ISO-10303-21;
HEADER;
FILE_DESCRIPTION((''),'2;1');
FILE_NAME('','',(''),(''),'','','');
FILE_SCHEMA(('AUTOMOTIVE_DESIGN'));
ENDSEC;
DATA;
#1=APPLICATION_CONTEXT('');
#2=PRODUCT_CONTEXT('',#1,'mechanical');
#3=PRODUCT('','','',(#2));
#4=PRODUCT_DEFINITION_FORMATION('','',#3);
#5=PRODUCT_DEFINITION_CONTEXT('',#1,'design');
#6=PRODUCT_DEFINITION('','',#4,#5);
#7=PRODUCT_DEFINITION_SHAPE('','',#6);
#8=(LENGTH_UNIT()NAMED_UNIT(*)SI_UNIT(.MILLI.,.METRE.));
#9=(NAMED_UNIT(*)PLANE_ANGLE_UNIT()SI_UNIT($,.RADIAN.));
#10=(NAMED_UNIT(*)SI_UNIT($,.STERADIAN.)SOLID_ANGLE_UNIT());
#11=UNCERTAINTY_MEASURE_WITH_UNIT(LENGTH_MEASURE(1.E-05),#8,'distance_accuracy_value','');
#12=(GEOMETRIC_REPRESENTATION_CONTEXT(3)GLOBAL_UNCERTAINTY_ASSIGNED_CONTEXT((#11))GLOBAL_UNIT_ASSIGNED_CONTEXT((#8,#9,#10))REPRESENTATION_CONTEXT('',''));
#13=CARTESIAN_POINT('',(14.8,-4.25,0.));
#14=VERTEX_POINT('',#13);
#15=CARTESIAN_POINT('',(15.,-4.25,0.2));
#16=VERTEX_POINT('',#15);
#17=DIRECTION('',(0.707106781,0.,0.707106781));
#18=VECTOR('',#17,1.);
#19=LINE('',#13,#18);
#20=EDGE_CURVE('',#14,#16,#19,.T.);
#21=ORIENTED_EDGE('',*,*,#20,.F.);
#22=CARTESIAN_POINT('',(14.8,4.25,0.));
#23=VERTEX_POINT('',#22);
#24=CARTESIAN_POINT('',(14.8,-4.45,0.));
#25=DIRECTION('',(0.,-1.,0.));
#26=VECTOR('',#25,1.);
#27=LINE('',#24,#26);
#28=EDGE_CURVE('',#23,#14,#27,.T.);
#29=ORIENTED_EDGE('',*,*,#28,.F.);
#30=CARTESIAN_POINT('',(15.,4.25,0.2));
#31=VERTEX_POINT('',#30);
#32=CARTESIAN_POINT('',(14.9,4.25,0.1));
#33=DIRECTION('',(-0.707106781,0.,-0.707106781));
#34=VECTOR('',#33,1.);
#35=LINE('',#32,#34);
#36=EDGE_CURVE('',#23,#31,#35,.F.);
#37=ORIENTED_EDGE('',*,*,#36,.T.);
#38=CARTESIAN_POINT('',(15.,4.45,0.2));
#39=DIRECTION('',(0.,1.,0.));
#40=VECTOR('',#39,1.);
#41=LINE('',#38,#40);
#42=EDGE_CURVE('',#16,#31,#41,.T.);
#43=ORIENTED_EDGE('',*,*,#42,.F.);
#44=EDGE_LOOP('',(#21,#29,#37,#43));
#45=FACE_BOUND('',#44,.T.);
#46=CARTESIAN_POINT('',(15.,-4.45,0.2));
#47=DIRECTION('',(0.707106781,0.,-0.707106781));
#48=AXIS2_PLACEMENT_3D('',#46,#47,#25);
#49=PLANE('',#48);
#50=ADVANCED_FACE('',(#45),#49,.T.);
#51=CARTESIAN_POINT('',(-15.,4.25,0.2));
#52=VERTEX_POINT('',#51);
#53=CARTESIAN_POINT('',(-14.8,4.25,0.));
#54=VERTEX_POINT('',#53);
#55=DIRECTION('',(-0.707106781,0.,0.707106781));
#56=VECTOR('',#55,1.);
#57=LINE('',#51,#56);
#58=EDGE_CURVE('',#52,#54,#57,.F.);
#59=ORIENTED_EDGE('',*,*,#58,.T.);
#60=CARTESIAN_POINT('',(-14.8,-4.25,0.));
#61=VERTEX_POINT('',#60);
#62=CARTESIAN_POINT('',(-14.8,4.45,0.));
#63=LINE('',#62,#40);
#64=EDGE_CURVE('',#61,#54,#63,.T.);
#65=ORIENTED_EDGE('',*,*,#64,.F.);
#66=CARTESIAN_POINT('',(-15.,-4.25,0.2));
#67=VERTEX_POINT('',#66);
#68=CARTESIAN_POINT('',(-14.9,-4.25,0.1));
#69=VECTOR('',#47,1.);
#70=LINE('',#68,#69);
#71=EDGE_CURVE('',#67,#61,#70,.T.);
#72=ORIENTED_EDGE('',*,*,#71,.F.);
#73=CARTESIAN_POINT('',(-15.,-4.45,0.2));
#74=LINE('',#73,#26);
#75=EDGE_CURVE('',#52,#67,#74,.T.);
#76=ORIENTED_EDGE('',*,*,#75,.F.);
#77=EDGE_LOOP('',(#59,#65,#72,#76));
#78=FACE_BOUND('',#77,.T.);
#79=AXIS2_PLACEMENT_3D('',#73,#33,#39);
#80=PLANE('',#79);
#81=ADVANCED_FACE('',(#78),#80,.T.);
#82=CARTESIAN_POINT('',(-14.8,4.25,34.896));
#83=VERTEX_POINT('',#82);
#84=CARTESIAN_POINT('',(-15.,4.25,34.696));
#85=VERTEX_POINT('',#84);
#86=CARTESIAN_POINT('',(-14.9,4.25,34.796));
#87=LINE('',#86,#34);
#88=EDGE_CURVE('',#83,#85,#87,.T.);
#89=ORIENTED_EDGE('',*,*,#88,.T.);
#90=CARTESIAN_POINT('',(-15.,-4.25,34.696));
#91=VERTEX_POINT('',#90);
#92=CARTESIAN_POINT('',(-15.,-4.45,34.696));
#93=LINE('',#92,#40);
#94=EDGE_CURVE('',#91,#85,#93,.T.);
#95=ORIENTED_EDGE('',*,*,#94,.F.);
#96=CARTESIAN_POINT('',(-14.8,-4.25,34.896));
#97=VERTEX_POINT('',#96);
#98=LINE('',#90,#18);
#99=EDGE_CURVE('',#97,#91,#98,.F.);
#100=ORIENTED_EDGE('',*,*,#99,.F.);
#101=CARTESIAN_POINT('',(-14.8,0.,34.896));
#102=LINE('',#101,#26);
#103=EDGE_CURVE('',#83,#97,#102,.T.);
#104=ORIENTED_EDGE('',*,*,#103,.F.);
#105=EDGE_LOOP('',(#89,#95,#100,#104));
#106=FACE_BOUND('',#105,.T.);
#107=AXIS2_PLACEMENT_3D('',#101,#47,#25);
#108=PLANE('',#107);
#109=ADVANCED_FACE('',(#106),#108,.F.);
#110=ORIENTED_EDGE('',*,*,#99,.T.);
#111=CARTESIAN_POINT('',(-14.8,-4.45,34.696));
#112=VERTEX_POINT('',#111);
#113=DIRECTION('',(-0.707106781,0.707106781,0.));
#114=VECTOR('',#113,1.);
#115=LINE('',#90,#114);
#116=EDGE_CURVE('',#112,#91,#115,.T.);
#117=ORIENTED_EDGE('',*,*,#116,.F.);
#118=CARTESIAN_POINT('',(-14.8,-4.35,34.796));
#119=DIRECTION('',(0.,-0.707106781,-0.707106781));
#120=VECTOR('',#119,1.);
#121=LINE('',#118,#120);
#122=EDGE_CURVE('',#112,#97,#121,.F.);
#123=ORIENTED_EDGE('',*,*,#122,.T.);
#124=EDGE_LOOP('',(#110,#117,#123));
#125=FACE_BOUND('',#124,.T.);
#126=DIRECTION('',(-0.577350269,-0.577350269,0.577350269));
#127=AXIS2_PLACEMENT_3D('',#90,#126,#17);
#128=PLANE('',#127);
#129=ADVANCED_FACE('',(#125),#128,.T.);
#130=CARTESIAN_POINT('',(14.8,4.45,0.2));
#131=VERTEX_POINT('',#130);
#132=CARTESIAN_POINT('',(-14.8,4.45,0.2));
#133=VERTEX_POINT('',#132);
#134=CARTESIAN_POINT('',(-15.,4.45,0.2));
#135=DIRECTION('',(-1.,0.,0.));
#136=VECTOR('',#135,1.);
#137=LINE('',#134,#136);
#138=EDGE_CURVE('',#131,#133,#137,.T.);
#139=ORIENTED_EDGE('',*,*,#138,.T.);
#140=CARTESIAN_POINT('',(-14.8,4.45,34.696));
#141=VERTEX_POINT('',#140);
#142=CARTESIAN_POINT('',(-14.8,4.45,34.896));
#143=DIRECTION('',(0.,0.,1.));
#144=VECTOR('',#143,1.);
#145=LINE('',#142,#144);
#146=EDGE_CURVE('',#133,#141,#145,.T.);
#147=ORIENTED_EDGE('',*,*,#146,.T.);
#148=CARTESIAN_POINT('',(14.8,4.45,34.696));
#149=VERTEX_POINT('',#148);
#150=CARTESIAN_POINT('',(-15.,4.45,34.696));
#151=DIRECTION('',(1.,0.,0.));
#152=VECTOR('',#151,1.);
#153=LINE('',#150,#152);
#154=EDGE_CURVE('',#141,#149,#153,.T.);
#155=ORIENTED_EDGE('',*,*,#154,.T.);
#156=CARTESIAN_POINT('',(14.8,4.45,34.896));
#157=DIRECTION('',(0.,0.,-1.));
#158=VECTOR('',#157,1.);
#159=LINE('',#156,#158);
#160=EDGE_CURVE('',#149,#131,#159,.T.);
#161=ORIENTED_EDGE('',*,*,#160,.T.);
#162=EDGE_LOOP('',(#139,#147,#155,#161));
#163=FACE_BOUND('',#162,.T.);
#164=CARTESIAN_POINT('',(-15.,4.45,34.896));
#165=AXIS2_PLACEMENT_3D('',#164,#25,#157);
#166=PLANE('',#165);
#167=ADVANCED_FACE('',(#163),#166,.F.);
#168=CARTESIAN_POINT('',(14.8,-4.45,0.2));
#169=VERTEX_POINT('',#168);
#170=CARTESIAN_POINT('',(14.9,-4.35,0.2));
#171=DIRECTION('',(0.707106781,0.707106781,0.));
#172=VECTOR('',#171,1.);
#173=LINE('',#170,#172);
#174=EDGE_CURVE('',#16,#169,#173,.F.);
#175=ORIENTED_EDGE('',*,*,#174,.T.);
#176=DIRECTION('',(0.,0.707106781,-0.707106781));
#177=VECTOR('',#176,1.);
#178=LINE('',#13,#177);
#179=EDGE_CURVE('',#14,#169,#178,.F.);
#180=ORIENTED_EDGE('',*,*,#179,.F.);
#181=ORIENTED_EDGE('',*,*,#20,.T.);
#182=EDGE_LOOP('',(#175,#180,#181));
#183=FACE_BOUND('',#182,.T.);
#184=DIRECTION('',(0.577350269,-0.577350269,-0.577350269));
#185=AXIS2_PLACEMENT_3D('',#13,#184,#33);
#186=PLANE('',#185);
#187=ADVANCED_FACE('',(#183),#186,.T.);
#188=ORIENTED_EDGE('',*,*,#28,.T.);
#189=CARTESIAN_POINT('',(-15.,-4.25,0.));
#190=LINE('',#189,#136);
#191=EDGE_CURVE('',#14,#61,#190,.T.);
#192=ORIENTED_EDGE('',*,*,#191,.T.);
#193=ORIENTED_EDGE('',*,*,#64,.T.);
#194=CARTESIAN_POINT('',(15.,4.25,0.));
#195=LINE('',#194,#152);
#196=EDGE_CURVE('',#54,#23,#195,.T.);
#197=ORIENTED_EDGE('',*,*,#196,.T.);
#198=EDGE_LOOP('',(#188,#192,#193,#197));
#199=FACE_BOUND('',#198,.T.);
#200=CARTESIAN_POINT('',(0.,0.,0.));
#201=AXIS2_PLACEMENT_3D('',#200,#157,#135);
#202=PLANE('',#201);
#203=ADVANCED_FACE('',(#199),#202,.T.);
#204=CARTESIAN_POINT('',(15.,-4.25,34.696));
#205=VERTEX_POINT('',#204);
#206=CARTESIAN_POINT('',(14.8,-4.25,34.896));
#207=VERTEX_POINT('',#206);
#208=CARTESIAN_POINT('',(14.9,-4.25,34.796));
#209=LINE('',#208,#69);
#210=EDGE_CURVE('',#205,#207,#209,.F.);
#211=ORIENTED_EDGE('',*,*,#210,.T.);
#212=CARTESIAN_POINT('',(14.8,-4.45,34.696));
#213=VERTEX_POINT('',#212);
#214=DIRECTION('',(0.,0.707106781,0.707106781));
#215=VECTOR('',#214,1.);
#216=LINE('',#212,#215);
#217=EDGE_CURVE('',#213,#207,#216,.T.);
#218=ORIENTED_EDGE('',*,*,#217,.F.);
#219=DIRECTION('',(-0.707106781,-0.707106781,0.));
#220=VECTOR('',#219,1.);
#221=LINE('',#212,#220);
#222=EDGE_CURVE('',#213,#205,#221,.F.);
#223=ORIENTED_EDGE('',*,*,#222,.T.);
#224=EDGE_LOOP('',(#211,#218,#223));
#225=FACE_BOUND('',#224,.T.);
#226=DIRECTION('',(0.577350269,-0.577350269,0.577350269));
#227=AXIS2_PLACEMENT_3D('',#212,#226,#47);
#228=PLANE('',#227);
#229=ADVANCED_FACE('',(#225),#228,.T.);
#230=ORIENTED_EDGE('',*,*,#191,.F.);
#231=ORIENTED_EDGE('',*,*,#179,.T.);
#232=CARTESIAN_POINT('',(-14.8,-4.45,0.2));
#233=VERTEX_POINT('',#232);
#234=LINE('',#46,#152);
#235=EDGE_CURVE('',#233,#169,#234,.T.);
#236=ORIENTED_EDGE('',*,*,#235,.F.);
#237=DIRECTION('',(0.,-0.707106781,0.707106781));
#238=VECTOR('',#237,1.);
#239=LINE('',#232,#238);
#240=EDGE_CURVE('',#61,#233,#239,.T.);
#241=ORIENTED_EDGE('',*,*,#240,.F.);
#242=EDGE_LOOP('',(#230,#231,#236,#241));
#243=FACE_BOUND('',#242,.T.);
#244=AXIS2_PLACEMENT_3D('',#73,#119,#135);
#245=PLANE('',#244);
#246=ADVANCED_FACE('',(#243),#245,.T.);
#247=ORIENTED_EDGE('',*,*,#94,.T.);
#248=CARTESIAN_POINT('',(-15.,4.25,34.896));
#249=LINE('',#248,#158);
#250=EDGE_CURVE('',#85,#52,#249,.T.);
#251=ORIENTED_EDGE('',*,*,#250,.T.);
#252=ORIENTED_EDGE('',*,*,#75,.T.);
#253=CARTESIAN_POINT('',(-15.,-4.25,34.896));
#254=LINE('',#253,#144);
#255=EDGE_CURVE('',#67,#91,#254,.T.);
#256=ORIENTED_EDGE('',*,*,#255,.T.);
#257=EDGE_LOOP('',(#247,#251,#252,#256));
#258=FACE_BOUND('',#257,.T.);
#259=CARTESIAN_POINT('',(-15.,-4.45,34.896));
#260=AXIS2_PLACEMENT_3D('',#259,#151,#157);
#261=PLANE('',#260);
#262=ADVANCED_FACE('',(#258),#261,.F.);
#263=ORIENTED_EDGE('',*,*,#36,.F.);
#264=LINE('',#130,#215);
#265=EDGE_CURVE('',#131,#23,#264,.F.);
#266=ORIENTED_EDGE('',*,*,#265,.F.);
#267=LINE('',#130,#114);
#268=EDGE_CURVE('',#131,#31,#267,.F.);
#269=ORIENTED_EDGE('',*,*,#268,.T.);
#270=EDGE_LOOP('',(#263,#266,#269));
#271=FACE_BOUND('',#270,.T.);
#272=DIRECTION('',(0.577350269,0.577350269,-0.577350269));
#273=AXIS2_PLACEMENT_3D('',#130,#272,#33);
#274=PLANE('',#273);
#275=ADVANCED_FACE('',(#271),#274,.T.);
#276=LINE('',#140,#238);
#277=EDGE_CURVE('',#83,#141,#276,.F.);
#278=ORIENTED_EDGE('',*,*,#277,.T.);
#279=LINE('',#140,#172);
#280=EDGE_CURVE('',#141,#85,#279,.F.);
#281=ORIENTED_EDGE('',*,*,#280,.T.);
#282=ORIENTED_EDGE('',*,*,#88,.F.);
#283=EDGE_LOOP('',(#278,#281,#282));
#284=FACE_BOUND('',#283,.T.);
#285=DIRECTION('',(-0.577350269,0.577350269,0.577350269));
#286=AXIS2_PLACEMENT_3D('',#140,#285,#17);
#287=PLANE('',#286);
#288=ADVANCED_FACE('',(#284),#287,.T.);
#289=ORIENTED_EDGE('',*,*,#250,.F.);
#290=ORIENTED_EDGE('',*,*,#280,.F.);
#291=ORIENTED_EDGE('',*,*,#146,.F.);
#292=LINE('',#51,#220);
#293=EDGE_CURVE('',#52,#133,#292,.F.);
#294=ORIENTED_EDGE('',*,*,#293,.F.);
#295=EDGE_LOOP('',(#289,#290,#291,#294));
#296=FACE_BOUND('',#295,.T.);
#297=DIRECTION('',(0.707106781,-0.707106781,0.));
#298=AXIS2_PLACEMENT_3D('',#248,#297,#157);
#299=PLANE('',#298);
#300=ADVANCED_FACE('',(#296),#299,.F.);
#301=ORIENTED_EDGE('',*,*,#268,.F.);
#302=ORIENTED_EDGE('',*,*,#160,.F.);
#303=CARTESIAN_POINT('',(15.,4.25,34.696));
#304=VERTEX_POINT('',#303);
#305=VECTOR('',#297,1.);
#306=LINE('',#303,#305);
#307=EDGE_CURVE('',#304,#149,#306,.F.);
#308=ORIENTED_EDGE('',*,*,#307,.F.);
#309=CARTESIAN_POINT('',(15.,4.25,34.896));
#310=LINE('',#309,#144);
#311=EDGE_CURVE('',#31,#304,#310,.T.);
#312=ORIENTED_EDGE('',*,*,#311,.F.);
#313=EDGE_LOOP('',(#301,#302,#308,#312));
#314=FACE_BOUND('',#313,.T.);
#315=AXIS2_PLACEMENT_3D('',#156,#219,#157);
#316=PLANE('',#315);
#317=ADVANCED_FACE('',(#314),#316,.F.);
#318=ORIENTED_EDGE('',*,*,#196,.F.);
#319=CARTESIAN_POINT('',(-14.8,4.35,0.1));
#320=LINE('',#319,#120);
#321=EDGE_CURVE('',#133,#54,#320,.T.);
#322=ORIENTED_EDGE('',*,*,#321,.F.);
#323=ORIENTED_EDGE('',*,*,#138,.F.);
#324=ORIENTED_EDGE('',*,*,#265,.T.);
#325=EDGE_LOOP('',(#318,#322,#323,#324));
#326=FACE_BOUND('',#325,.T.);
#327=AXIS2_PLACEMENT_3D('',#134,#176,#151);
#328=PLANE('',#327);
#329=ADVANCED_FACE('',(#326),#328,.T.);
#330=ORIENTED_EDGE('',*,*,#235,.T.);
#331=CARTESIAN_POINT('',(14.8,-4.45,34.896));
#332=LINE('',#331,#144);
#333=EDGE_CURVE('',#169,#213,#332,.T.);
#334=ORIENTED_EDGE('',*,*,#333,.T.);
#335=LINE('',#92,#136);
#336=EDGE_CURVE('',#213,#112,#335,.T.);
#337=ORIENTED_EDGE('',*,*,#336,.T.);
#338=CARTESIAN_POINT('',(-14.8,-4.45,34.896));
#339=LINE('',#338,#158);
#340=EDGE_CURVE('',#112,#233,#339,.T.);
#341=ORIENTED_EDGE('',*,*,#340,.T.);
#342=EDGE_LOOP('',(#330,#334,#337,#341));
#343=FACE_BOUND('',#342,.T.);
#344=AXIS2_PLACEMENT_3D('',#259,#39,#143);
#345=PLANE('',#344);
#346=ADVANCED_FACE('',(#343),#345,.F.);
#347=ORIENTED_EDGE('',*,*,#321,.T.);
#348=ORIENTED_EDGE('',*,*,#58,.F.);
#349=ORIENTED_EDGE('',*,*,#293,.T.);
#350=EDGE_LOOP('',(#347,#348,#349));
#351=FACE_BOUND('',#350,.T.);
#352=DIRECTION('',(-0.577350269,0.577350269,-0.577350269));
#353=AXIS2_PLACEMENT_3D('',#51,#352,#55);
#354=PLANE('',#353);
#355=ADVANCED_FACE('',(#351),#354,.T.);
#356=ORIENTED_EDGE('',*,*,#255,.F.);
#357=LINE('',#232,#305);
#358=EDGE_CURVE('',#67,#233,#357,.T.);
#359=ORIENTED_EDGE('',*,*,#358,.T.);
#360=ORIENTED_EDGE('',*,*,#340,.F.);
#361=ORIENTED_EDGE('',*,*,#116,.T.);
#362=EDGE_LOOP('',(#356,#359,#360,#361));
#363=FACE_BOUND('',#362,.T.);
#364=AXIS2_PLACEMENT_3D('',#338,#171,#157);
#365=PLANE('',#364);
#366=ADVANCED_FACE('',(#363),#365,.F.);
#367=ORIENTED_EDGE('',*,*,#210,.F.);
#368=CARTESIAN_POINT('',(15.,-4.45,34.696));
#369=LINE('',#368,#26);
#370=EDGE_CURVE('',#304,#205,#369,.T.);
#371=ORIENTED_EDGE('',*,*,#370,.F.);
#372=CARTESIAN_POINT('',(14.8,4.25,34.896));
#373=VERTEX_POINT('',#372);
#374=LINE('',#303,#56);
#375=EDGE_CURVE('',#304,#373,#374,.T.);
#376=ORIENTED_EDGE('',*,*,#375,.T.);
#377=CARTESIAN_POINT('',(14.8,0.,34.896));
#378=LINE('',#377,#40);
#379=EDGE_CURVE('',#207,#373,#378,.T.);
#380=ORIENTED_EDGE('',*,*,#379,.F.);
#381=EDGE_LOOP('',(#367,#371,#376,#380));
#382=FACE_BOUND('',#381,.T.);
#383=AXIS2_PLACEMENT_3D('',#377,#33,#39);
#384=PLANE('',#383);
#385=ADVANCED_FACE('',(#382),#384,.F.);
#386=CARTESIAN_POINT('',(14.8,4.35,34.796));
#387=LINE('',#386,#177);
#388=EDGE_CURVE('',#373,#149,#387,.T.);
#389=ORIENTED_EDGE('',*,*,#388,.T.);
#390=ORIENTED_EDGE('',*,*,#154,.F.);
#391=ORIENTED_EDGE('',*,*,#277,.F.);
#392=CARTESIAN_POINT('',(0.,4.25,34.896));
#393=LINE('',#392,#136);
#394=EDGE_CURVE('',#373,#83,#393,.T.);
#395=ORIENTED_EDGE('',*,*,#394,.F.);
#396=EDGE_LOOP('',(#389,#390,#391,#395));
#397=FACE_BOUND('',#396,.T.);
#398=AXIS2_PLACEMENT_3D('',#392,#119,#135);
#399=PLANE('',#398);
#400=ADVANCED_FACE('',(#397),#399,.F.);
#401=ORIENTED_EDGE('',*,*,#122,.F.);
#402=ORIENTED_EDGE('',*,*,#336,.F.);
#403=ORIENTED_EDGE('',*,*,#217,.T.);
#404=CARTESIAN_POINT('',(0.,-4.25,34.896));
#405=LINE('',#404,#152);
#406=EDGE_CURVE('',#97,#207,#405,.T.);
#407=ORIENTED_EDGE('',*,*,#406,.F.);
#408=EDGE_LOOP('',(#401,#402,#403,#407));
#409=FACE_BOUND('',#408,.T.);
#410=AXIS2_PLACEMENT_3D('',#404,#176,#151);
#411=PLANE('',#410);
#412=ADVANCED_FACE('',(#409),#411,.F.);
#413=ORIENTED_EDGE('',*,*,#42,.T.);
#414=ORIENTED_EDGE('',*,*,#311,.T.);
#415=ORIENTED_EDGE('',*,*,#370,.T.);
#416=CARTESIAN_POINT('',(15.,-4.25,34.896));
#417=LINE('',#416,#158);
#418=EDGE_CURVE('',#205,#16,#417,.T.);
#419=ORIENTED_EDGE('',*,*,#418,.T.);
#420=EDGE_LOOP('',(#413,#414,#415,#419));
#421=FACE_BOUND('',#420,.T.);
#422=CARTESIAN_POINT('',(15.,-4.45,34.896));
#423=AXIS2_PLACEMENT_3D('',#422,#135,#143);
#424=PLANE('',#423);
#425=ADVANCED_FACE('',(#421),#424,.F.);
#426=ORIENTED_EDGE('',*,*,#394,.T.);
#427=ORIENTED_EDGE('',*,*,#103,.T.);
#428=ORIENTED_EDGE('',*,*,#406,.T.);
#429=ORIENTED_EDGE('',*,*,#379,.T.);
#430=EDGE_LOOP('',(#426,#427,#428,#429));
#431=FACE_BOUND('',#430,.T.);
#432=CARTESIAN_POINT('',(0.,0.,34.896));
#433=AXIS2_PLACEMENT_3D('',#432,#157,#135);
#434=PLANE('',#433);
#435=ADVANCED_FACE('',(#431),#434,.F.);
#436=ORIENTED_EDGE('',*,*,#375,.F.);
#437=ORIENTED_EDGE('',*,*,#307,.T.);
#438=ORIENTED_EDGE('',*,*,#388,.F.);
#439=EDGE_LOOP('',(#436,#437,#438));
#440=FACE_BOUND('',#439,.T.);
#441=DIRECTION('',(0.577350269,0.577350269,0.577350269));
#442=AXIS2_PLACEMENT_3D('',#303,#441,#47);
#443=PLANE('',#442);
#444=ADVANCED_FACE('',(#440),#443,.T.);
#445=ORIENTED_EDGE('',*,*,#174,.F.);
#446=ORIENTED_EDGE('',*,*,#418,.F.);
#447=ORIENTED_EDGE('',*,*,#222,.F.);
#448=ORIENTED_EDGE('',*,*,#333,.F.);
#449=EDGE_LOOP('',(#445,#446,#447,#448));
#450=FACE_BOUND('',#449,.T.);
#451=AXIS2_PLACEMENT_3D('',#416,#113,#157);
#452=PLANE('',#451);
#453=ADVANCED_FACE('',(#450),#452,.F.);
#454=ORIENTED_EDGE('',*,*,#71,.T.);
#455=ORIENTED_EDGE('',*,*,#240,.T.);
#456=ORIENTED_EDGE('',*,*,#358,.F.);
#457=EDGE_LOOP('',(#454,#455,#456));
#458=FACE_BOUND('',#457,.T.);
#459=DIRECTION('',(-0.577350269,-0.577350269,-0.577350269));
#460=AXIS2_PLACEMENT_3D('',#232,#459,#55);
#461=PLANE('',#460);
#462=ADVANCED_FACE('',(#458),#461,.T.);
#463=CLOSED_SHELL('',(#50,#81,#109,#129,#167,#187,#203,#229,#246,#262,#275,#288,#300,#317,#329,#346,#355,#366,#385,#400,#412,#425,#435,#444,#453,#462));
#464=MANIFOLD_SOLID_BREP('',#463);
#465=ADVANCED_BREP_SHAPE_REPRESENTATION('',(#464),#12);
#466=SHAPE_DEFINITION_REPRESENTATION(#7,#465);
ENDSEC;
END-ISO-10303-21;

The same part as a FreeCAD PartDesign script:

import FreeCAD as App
import Part
import Sketcher
from FreeCAD import Vector

doc = App.newDocument("Part")
params = doc.addObject("Spreadsheet::Sheet", "Params")
for row, (alias, value) in enumerate([
    ("sketch1_width", "30 mm"),
    ("sketch1_height", "8.9 mm"),
    ("pad1_length", "34.896 mm"),
    ("chamfer_size", "0.2 mm"),
], start=1):
    params.set(f"A{row}", alias)
    params.set(f"B{row}", "=" + value)
    params.setAlias(f"B{row}", alias)

body = doc.addObject("PartDesign::Body", "Body")

# Sketch on XY plane
sketch1 = body.newObject("Sketcher::SketchObject", "Sketch")
sketch1.AttachmentSupport = (doc.getObject("XY_Plane"), [""])
sketch1.MapMode = "FlatFace"
sketch1.addGeometry(Part.LineSegment(Vector(-15, 4, 0), Vector(-15, -4, 0)), False)
sketch1.addGeometry(Part.LineSegment(Vector(-15, -4, 0), Vector(15, -4, 0)), False)
sketch1.addGeometry(Part.LineSegment(Vector(15, -4, 0), Vector(15, 4, 0)), False)
sketch1.addGeometry(Part.LineSegment(Vector(15, 4, 0), Vector(-15, 4, 0)), False)
sketch1.addConstraint(Sketcher.Constraint("Coincident", 0, 2, 1, 1))
sketch1.addConstraint(Sketcher.Constraint("Coincident", 1, 2, 2, 1))
sketch1.addConstraint(Sketcher.Constraint("Coincident", 2, 2, 3, 1))
sketch1.addConstraint(Sketcher.Constraint("Coincident", 3, 2, 0, 1))
sketch1.addConstraint(Sketcher.Constraint("Vertical", 0))
sketch1.addConstraint(Sketcher.Constraint("Horizontal", 1))
sketch1.addConstraint(Sketcher.Constraint("Vertical", 2))
sketch1.addConstraint(Sketcher.Constraint("Horizontal", 3))
sketch1.addConstraint(Sketcher.Constraint("Symmetric", 0, 2, 2, 2, -1, 1))
sketch1.addConstraint(Sketcher.Constraint("DistanceX", 1, 1, 1, 2, 30.0))
sketch1.addConstraint(Sketcher.Constraint("DistanceY", 0, 2, 0, 1, 8.9))
sketch1.setExpression("Constraints[9]", "Params.sketch1_width")
sketch1.setExpression("Constraints[10]", "Params.sketch1_height")
pad1 = body.newObject("PartDesign::Pad", "Pad")
pad1.Profile = sketch1
pad1.setExpression("Length", "Params.pad1_length")
doc.recompute()

chamfer = body.newObject("PartDesign::Chamfer", "Chamfer")
chamfer.Base = (pad1, ["Edge1"])
chamfer.UseAllEdges = True
chamfer.setExpression("Size", "Params.chamfer_size")

doc.recompute()
